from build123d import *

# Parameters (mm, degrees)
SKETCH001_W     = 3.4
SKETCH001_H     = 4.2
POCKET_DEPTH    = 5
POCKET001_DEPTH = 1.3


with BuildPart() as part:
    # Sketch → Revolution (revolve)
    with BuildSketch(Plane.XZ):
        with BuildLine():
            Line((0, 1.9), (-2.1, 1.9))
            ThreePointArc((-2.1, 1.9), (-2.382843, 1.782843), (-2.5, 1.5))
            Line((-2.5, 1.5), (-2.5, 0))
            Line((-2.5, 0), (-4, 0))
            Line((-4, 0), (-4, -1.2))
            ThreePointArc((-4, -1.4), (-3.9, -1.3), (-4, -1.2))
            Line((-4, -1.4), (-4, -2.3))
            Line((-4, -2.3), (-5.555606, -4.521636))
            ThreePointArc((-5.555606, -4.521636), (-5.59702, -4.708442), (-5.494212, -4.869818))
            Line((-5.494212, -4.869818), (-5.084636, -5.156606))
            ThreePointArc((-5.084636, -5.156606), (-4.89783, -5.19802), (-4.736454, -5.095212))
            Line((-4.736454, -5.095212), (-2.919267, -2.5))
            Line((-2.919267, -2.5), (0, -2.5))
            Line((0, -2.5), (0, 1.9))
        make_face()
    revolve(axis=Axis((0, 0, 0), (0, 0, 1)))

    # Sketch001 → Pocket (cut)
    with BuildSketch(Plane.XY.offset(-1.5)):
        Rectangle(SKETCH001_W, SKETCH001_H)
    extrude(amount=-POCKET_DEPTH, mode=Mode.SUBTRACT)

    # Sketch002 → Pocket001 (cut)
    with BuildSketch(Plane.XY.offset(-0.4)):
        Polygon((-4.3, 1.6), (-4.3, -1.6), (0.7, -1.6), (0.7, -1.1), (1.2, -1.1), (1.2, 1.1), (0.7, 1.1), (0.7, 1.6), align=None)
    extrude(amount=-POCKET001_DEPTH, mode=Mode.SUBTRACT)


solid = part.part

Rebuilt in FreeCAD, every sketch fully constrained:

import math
import FreeCAD as App
import Part
import Sketcher
Q = App.Units.Quantity

doc = App.newDocument("Part")
params = doc.addObject("Spreadsheet::Sheet", "Params")
for row, (alias, value) in enumerate([
    ("sketch1_radius", "0.399999 mm"),
    ("sketch1_radius2", "0.1 mm"),
    ("sketch1_radius3", "0.25 mm"),
    ("sketch1_width", "2.1 mm"),
    ("sketch1_width2", "1.5 mm"),
    ("revolution_angle", "360 deg"),
    ("sketch2_width", "3.4 mm"),
    ("sketch2_height", "4.2 mm"),
    ("pocket1_length", "5 mm"),
    ("sketch3_width", "5 mm"),
    ("sketch3_width2", "0.5 mm"),
    ("sketch3_height", "3.2 mm"),
    ("pocket2_length", "1.3 mm"),
], start=1):
    params.set(f"A{row}", alias)
    params.set(f"B{row}", "=" + value)
    params.setAlias(f"B{row}", alias)

body = doc.addObject("PartDesign::Body", "Body")

sketch1 = body.newObject("Sketcher::SketchObject", "Sketch")
sketch1.AttachmentSupport = (doc.getObject("XZ_Plane"), [""])
sketch1.MapMode = "FlatFace"
sketch1.addGeometry([
    Part.LineSegment(App.Vector(0, 1.9, 0), App.Vector(-2.1, 1.9, 0)),
    Part.ArcOfCircle(Part.Circle(App.Vector(-2.1, 1.5, 0), App.Vector(0, 0, 1), 0.4), math.radians(90), math.radians(180)),
    Part.LineSegment(App.Vector(-2.5, 1.5, 0), App.Vector(-2.5, 0, 0)),
    Part.LineSegment(App.Vector(-2.5, 0, 0), App.Vector(-4, 0, 0)),
    Part.LineSegment(App.Vector(-4, 0, 0), App.Vector(-4, -1.2, 0)),
    Part.ArcOfCircle(Part.Circle(App.Vector(-4, -1.3, 0), App.Vector(0, 0, 1), 0.1), math.radians(-90), math.radians(90)),
    Part.LineSegment(App.Vector(-4, -1.4, 0), App.Vector(-4, -2.3, 0)),
    Part.LineSegment(App.Vector(-4, -2.3, 0), App.Vector(-5.56, -4.52, 0)),
    Part.ArcOfCircle(Part.Circle(App.Vector(-5.35, -4.67, 0), App.Vector(0, 0, 1), 0.25), math.radians(145), math.radians(235)),
    Part.LineSegment(App.Vector(-5.49, -4.87, 0), App.Vector(-5.08, -5.16, 0)),
    Part.ArcOfCircle(Part.Circle(App.Vector(-4.94, -4.95, 0), App.Vector(0, 0, 1), 0.25), math.radians(-125), math.radians(-35)),
    Part.LineSegment(App.Vector(-4.74, -5.1, 0), App.Vector(-2.92, -2.5, 0)),
    Part.LineSegment(App.Vector(-2.92, -2.5, 0), App.Vector(0, -2.5, 0)),
    Part.LineSegment(App.Vector(0, -2.5, 0), App.Vector(0, 1.9, 0)),
], False)
sketch1.addConstraint([
    Sketcher.Constraint("Coincident", 0, 2, 1, 1),
    Sketcher.Constraint("Coincident", 1, 2, 2, 1),
    Sketcher.Constraint("Coincident", 2, 2, 3, 1),
    Sketcher.Constraint("Coincident", 3, 2, 4, 1),
    Sketcher.Constraint("Coincident", 4, 2, 5, 2),
    Sketcher.Constraint("Coincident", 5, 1, 6, 1),
    Sketcher.Constraint("Coincident", 6, 2, 7, 1),
    Sketcher.Constraint("Tangent", 7, 2, 8, 1),
    Sketcher.Constraint("Tangent", 8, 2, 9, 1),
    Sketcher.Constraint("Tangent", 9, 2, 10, 1),
    Sketcher.Constraint("Tangent", 10, 2, 11, 1),
    Sketcher.Constraint("Coincident", 11, 2, 12, 1),
    Sketcher.Constraint("Coincident", 12, 2, 13, 1),
    Sketcher.Constraint("Coincident", 13, 2, 0, 1),
    Sketcher.Constraint("Horizontal", 0),
    Sketcher.Constraint("Vertical", 2),
    Sketcher.Constraint("Horizontal", 3),
    Sketcher.Constraint("Vertical", 4),
    Sketcher.Constraint("Vertical", 6),
    Sketcher.Constraint("Horizontal", 12),
    Sketcher.Constraint("Vertical", 13),
    Sketcher.Constraint("Equal", 8, 10),
    Sketcher.Constraint("PointOnObject", 2, 2, -1),
    Sketcher.Constraint("PointOnObject", 12, 2, -2),
    Sketcher.Constraint("Perpendicular", 7, 9),
    Sketcher.Constraint("Perpendicular", 9, 11),
    Sketcher.Constraint("Vertical", 1, 3, 0, 2),
    Sketcher.Constraint("Vertical", 5, 3, 3, 2),
    Sketcher.Constraint("Vertical", 4, 2, 5, 1),
    Sketcher.Constraint("Equal", 3, 2),
    Sketcher.Constraint("Radius", 1, Q("0.399999 mm")),
    Sketcher.Constraint("Radius", 5, Q("0.1 mm")),
    Sketcher.Constraint("Angle", 7, Q("-124.999995 deg")),
    Sketcher.Constraint("Radius", 8, Q("0.25 mm")),
    Sketcher.Constraint("DistanceX", 0, 2, 0, 1, Q("2.1 mm")),
    Sketcher.Constraint("DistanceX", 3, 2, 3, 1, Q("1.5 mm")),
    Sketcher.Constraint("DistanceY", 4, 2, 4, 1, Q("1.2 mm")),
    Sketcher.Constraint("DistanceY", 6, 2, 6, 1, Q("0.9 mm")),
    Sketcher.Constraint("DistanceY", 13, 1, 13, 2, Q("4.4 mm")),
    Sketcher.Constraint("Distance", 9, Q("0.5 mm")),
    Sketcher.Constraint("DistanceY", -1, 1, 1, 3, Q("1.500001 mm")),
    Sketcher.Constraint("Distance", 11, Q("3.168169 mm")),
])
sketch1.setExpression("Constraints[30]", "Params.sketch1_radius")
sketch1.setExpression("Constraints[31]", "Params.sketch1_radius2")
sketch1.setExpression("Constraints[33]", "Params.sketch1_radius3")
sketch1.setExpression("Constraints[34]", "Params.sketch1_width")
sketch1.setExpression("Constraints[35]", "Params.sketch1_width2")
revolution = body.newObject("PartDesign::Revolution", "Revolution")
revolution.Profile = sketch1
revolution.ReferenceAxis = (sketch1, ["V_Axis"])
revolution.setExpression("Angle", "Params.revolution_angle")

sketch2 = body.newObject("Sketcher::SketchObject", "Sketch001")
sketch2.AttachmentSupport = (doc.getObject("XY_Plane"), [""])
sketch2.MapMode = "FlatFace"
sketch2.AttachmentOffset = App.Placement(App.Vector(0, 0, -1.5), App.Rotation())
sketch2.addGeometry([
    Part.LineSegment(App.Vector(-1.7, 2.1, 0), App.Vector(-1.7, -2.1, 0)),
    Part.LineSegment(App.Vector(-1.7, -2.1, 0), App.Vector(1.7, -2.1, 0)),
    Part.LineSegment(App.Vector(1.7, -2.1, 0), App.Vector(1.7, 2.1, 0)),
    Part.LineSegment(App.Vector(1.7, 2.1, 0), App.Vector(-1.7, 2.1, 0)),
], False)
sketch2.addConstraint([
    Sketcher.Constraint("Coincident", 0, 2, 1, 1),
    Sketcher.Constraint("Coincident", 1, 2, 2, 1),
    Sketcher.Constraint("Coincident", 2, 2, 3, 1),
    Sketcher.Constraint("Coincident", 3, 2, 0, 1),
    Sketcher.Constraint("Vertical", 0),
    Sketcher.Constraint("Horizontal", 1),
    Sketcher.Constraint("Vertical", 2),
    Sketcher.Constraint("Horizontal", 3),
    Sketcher.Constraint("Symmetric", 0, 2, 2, 2, -1, 1),
    Sketcher.Constraint("DistanceX", 1, 1, 1, 2, Q("3.4 mm")),
    Sketcher.Constraint("DistanceY", 0, 2, 0, 1, Q("4.2 mm")),
])
sketch2.setExpression("Constraints[9]", "Params.sketch2_width")
sketch2.setExpression("Constraints[10]", "Params.sketch2_height")
pocket1 = body.newObject("PartDesign::Pocket", "Pocket")
pocket1.Profile = sketch2
pocket1.setExpression("Length", "Params.pocket1_length")

sketch3 = body.newObject("Sketcher::SketchObject", "Sketch002")
sketch3.AttachmentSupport = (doc.getObject("XY_Plane"), [""])
sketch3.MapMode = "FlatFace"
sketch3.AttachmentOffset = App.Placement(App.Vector(0, 0, -0.4), App.Rotation())
sketch3.addGeometry([
    Part.LineSegment(App.Vector(-4.3, 1.6, 0), App.Vector(-4.3, -1.6, 0)),
    Part.LineSegment(App.Vector(-4.3, -1.6, 0), App.Vector(0.7, -1.6, 0)),
    Part.LineSegment(App.Vector(0.7, -1.6, 0), App.Vector(0.7, -1.1, 0)),
    Part.LineSegment(App.Vector(0.7, -1.1, 0), App.Vector(1.2, -1.1, 0)),
    Part.LineSegment(App.Vector(1.2, -1.1, 0), App.Vector(1.2, 1.1, 0)),
    Part.LineSegment(App.Vector(1.2, 1.1, 0), App.Vector(0.7, 1.1, 0)),
    Part.LineSegment(App.Vector(0.7, 1.1, 0), App.Vector(0.7, 1.6, 0)),
    Part.LineSegment(App.Vector(0.7, 1.6, 0), App.Vector(-4.3, 1.6, 0)),
], False)
sketch3.addConstraint([
    Sketcher.Constraint("Coincident", 0, 2, 1, 1),
    Sketcher.Constraint("Coincident", 1, 2, 2, 1),
    Sketcher.Constraint("Coincident", 2, 2, 3, 1),
    Sketcher.Constraint("Coincident", 3, 2, 4, 1),
    Sketcher.Constraint("Coincident", 4, 2, 5, 1),
    Sketcher.Constraint("Coincident", 5, 2, 6, 1),
    Sketcher.Constraint("Coincident", 6, 2, 7, 1),
    Sketcher.Constraint("Coincident", 7, 2, 0, 1),
    Sketcher.Constraint("Vertical", 0),
    Sketcher.Constraint("Horizontal", 1),
    Sketcher.Constraint("Vertical", 2),
    Sketcher.Constraint("Horizontal", 3),
    Sketcher.Constraint("Vertical", 4),
    Sketcher.Constraint("Horizontal", 5),
    Sketcher.Constraint("Vertical", 6),
    Sketcher.Constraint("Horizontal", 7),
    Sketcher.Constraint("Symmetric", 2, 2, 5, 2, -1),
    Sketcher.Constraint("Equal", 5, 2),
    Sketcher.Constraint("Equal", 2, 6),
    Sketcher.Constraint("DistanceX", 1, 1, 1, 2, Q("5 mm")),
    Sketcher.Constraint("DistanceX", 3, 1, 3, 2, Q("0.5 mm")),
    Sketcher.Constraint("DistanceY", 0, 2, 0, 1, Q("3.2 mm")),
    Sketcher.Constraint("DistanceX", 0, 2, -1, 1, Q("4.3 mm")),
])
sketch3.setExpression("Constraints[19]", "Params.sketch3_width")
sketch3.setExpression("Constraints[20]", "Params.sketch3_width2")
sketch3.setExpression("Constraints[21]", "Params.sketch3_height")
pocket2 = body.newObject("PartDesign::Pocket", "Pocket001")
pocket2.Profile = sketch3
pocket2.setExpression("Length", "Params.pocket2_length")

doc.recompute()
